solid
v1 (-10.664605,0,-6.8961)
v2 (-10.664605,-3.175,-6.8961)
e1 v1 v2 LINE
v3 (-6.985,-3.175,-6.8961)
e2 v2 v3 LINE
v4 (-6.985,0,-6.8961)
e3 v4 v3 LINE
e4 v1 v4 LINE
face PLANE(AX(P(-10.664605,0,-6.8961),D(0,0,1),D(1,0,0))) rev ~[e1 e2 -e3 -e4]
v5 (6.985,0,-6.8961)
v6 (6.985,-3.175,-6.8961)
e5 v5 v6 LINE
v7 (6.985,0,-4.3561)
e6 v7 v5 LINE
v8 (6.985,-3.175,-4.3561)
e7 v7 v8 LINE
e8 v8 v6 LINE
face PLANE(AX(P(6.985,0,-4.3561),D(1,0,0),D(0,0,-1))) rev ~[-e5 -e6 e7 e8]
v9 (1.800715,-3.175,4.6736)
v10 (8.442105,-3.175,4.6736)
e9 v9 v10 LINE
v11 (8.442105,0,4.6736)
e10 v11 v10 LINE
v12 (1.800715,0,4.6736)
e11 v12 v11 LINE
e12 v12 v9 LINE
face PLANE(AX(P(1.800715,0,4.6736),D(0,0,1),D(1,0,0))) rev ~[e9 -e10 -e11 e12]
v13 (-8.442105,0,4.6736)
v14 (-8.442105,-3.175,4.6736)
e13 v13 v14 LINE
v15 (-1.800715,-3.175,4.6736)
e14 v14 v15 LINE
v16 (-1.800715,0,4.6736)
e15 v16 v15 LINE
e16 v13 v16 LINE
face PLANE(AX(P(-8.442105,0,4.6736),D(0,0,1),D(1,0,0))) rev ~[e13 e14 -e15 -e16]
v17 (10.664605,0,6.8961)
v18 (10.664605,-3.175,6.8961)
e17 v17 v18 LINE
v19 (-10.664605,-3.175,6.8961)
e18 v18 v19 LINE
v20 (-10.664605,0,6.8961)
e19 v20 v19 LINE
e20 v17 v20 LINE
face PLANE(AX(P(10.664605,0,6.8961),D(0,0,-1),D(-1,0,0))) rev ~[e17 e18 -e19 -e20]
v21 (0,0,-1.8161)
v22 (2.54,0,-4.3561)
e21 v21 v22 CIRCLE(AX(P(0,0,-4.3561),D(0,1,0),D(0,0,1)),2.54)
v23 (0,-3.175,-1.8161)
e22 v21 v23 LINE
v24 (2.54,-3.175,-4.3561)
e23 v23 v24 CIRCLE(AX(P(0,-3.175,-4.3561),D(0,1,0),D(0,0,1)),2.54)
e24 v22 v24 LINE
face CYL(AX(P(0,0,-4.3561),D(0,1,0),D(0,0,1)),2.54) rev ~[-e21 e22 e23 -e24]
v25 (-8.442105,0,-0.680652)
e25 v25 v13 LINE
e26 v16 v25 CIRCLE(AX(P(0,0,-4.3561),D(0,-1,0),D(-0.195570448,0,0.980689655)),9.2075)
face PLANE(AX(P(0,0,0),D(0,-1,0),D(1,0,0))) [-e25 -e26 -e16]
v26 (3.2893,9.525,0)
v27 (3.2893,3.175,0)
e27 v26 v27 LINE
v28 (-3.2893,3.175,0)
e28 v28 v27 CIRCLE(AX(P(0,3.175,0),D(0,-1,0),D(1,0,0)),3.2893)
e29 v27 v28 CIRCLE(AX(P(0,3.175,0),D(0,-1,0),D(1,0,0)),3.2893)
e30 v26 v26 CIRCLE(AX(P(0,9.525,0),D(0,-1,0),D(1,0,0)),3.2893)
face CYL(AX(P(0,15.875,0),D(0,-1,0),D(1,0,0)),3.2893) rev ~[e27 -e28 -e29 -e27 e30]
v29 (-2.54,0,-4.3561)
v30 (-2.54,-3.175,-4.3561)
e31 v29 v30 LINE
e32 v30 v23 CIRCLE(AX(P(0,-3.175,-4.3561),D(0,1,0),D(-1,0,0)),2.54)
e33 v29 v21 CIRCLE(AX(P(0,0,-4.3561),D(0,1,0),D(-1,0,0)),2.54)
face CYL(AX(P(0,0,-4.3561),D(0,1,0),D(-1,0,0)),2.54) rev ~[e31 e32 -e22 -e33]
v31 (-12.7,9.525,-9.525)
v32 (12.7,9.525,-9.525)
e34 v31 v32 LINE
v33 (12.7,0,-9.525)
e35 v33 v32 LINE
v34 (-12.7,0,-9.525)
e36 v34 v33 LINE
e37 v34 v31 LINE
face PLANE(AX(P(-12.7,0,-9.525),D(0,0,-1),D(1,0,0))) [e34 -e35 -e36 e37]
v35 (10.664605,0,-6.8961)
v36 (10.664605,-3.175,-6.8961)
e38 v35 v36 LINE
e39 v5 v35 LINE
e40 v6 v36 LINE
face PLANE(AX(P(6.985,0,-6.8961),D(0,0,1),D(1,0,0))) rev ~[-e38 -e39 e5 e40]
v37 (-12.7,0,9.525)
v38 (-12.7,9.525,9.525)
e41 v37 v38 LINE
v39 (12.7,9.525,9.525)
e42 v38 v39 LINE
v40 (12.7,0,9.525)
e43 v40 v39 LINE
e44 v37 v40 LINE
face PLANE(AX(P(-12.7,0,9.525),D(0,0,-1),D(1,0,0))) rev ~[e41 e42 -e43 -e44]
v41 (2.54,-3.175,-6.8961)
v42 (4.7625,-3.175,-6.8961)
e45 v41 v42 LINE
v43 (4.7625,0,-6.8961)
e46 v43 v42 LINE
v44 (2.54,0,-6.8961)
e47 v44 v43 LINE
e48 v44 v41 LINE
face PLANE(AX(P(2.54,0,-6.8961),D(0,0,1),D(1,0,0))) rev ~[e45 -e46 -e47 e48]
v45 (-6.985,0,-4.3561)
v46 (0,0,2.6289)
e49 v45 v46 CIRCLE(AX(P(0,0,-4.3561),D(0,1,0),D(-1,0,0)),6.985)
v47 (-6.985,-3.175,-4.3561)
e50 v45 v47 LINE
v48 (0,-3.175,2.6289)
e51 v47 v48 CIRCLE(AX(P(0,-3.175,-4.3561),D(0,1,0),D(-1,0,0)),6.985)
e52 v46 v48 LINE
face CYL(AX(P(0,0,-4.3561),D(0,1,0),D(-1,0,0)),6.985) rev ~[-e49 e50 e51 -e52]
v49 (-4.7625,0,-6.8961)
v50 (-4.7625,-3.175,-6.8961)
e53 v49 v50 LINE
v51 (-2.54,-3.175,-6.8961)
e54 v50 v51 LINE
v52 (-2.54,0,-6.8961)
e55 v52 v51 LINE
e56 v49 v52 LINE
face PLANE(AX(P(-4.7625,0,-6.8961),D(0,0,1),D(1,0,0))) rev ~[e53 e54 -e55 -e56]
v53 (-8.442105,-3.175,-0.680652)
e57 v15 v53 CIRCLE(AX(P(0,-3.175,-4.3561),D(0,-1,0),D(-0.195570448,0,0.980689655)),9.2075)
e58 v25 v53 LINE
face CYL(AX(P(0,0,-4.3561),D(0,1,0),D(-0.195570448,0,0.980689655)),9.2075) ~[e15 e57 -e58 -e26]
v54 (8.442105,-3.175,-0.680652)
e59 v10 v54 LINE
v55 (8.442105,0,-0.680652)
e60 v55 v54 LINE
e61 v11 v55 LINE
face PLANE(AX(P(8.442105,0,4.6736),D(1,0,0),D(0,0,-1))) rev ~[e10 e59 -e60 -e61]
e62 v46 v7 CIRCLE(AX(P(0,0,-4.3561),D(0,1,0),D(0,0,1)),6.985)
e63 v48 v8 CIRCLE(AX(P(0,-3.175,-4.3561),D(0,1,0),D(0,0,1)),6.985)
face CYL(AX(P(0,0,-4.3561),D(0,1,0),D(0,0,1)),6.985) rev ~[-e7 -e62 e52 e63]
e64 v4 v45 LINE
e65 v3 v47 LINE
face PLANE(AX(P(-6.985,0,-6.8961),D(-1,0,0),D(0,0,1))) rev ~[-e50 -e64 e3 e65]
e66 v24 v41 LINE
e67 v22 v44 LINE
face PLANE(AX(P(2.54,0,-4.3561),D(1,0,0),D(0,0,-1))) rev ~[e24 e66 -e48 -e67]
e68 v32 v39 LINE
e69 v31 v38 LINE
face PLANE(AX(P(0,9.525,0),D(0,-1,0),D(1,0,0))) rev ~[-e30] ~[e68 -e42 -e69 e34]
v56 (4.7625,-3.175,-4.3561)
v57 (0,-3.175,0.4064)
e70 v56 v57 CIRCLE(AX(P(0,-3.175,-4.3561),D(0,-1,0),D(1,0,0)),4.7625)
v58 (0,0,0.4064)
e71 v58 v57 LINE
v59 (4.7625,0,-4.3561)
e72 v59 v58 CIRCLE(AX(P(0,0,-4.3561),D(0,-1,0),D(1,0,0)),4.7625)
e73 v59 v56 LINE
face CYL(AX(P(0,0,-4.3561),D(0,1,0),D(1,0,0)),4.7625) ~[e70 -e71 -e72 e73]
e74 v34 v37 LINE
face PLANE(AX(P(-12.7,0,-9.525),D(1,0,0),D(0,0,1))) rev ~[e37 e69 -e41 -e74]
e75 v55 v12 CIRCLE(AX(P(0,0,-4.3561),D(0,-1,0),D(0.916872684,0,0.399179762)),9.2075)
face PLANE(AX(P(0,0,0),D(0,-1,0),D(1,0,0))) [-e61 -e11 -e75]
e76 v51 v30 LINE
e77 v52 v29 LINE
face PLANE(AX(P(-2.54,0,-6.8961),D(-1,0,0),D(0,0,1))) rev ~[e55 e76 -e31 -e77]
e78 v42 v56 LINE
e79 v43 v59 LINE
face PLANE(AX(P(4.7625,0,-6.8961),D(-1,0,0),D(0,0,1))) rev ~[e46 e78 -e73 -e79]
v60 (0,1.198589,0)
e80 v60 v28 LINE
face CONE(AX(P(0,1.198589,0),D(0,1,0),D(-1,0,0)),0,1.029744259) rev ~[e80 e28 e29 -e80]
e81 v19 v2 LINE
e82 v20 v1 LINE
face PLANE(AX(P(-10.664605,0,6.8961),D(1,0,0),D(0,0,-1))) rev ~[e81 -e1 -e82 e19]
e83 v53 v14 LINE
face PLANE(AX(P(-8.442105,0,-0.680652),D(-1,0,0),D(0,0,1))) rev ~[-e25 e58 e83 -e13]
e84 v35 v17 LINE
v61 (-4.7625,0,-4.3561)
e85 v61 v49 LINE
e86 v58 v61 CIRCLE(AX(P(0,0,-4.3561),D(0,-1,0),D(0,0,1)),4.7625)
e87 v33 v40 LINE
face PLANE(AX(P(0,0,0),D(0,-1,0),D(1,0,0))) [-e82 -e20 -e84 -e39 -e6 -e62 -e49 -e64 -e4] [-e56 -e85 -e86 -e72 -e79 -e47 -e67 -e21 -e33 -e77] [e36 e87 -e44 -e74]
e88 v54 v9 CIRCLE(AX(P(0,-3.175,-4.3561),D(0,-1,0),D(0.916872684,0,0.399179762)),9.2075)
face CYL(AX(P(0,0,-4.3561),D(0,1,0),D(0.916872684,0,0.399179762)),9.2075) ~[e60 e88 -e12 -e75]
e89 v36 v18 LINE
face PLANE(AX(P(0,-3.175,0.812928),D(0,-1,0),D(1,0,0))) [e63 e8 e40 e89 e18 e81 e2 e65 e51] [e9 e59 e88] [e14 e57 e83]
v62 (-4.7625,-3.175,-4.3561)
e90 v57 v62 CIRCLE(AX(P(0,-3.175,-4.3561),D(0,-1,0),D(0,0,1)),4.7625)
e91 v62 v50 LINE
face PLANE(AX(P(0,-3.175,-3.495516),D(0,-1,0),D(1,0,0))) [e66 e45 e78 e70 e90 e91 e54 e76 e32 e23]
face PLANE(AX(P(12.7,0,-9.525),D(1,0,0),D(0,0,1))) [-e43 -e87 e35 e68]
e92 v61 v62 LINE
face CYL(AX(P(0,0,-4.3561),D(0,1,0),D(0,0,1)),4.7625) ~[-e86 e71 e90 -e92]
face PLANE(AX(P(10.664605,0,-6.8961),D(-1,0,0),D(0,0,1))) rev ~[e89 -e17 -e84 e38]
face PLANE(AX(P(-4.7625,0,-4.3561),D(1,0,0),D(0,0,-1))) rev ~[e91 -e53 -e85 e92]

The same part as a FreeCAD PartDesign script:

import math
import FreeCAD as App
import Part
import Sketcher
from FreeCAD import Vector
Q = App.Units.Quantity


def add_polygon(sketch, points):
    """Adds a closed chain of lines whose ends are joined by coincident constraints."""
    first, n = sketch.GeometryCount, len(points)
    for a, b in zip(points, points[1:] + points[:1]):
        sketch.addGeometry(Part.LineSegment(App.Vector(*a, 0), App.Vector(*b, 0)), False)
    for i in range(n):
        sketch.addConstraint(Sketcher.Constraint("Coincident", first + i, 2, first + (i + 1) % n, 1))

doc = App.newDocument("Part")
body = doc.addObject("PartDesign::Body", "Body")

# Sketch on XZ plane
sketch1 = body.newObject("Sketcher::SketchObject", "Sketch")
sketch1.AttachmentSupport = (doc.getObject("XZ_Plane"), [""])
sketch1.MapMode = "FlatFace"
add_polygon(sketch1, [(-13, 10), (-13, -10), (13, -10), (13, 10)])  # lines 0-3
sketch1.addConstraint([
    Sketcher.Constraint("Vertical", 0),
    Sketcher.Constraint("Horizontal", 1),
    Sketcher.Constraint("Vertical", 2),
    Sketcher.Constraint("Horizontal", 3),
    Sketcher.Constraint("Symmetric", 0, 2, 2, 2, -1, 1),
    Sketcher.Constraint("DistanceX", 1, 1, 1, 2, Q("1 in")),
    Sketcher.Constraint("DistanceY", 0, 2, 0, 1, Q("0.75 in")),
])
pad1 = body.newObject("PartDesign::Pad", "Pad")
pad1.Profile = sketch1
pad1.Length = Q("0.375 in")
pad1.Reversed = True

# Sketch on XZ plane
sketch2 = body.newObject("Sketcher::SketchObject", "Sketch001")
sketch2.AttachmentSupport = (doc.getObject("XZ_Plane"), [""])
sketch2.MapMode = "FlatFace"
sketch2.addGeometry([
    Part.LineSegment(Vector(10.7, 6.9, 0), Vector(-10.7, 6.9, 0)),  # 0
    Part.LineSegment(Vector(-10.7, 6.9, 0), Vector(-10.7, -6.9, 0)),  # 1
    Part.LineSegment(Vector(-10.7, -6.9, 0), Vector(-7, -6.9, 0)),  # 2
    Part.LineSegment(Vector(-7, -6.9, 0), Vector(-7, -4.4, 0)),  # 3
    Part.ArcOfCircle(Part.Circle(Vector(0, -4.4, 0), Vector(0, 0, 1), 7), math.radians(90), math.radians(180)),  # 4
    Part.ArcOfCircle(Part.Circle(Vector(0, -4.4, 0), Vector(0, 0, 1), 7), math.radians(0), math.radians(90)),  # 5
    Part.LineSegment(Vector(7, -4.4, 0), Vector(7, -6.9, 0)),  # 6
    Part.LineSegment(Vector(7, -6.9, 0), Vector(10.7, -6.9, 0)),  # 7
    Part.LineSegment(Vector(10.7, -6.9, 0), Vector(10.7, 6.9, 0)),  # 8
    Part.LineSegment(Vector(-8.4, 4.7, 0), Vector(-1.8, 4.7, 0)),  # 9
    Part.ArcOfCircle(Part.Circle(Vector(0, -4.4, 0), Vector(0, 0, 1), 9.2), math.radians(101), math.radians(156)),  # 10
    Part.LineSegment(Vector(-8.4, -0.7, 0), Vector(-8.4, 4.7, 0)),  # 11
    Part.LineSegment(Vector(8.4, 4.7, 0), Vector(8.4, -0.7, 0)),  # 12
    Part.ArcOfCircle(Part.Circle(Vector(0, -4.4, 0), Vector(0, 0, 1), 9.2), math.radians(24), math.radians(79)),  # 13
    Part.LineSegment(Vector(1.8, 4.7, 0), Vector(8.4, 4.7, 0)),  # 14
    Part.LineSegment(Vector(2.5, -4.4, 0), Vector(2.5, -6.9, 0)),  # 15
    Part.LineSegment(Vector(2.5, -6.9, 0), Vector(4.8, -6.9, 0)),  # 16
    Part.LineSegment(Vector(4.8, -6.9, 0), Vector(4.8, -4.4, 0)),  # 17
    Part.ArcOfCircle(Part.Circle(Vector(0, -4.4, 0), Vector(0, 0, 1), 4.8), math.radians(0), math.radians(90)),  # 18
    Part.ArcOfCircle(Part.Circle(Vector(0, -4.4, 0), Vector(0, 0, 1), 4.8), math.radians(90), math.radians(180)),  # 19
    Part.LineSegment(Vector(-4.8, -4.4, 0), Vector(-4.8, -6.9, 0)),  # 20
    Part.LineSegment(Vector(-4.8, -6.9, 0), Vector(-2.5, -6.9, 0)),  # 21
    Part.LineSegment(Vector(-2.5, -6.9, 0), Vector(-2.5, -4.4, 0)),  # 22
    Part.ArcOfCircle(Part.Circle(Vector(0, -4.4, 0), Vector(0, 0, 1), 2.5), math.radians(90), math.radians(180)),  # 23
    Part.ArcOfCircle(Part.Circle(Vector(0, -4.4, 0), Vector(0, 0, 1), 2.5), math.radians(0), math.radians(90)),  # 24
], False)
sketch2.addConstraint([
    Sketcher.Constraint("Coincident", 0, 2, 1, 1),
    Sketcher.Constraint("Coincident", 1, 2, 2, 1),
    Sketcher.Constraint("Coincident", 2, 2, 3, 1),
    Sketcher.Constraint("Tangent", 3, 2, 4, 2),
    Sketcher.Constraint("Tangent", 4, 1, 5, 2),
    Sketcher.Constraint("Tangent", 5, 1, 6, 1),
    Sketcher.Constraint("Coincident", 6, 2, 7, 1),
    Sketcher.Constraint("Coincident", 7, 2, 8, 1),
    Sketcher.Constraint("Coincident", 8, 2, 0, 1),
    Sketcher.Constraint("Coincident", 9, 2, 10, 1),
    Sketcher.Constraint("Coincident", 10, 2, 11, 1),
    Sketcher.Constraint("Coincident", 11, 2, 9, 1),
    Sketcher.Constraint("Coincident", 12, 2, 13, 1),
    Sketcher.Constraint("Coincident", 13, 2, 14, 1),
    Sketcher.Constraint("Coincident", 14, 2, 12, 1),
    Sketcher.Constraint("Coincident", 15, 2, 16, 1),
    Sketcher.Constraint("Coincident", 16, 2, 17, 1),
    Sketcher.Constraint("Tangent", 17, 2, 18, 1),
    Sketcher.Constraint("Tangent", 18, 2, 19, 1),
    Sketcher.Constraint("Tangent", 19, 2, 20, 1),
    Sketcher.Constraint("Coincident", 20, 2, 21, 1),
    Sketcher.Constraint("Coincident", 21, 2, 22, 1),
    Sketcher.Constraint("Tangent", 22, 2, 23, 2),
    Sketcher.Constraint("Tangent", 23, 1, 24, 2),
    Sketcher.Constraint("Tangent", 24, 1, 15, 1),
    Sketcher.Constraint("Horizontal", 0),
    Sketcher.Constraint("Vertical", 1),
    Sketcher.Constraint("Horizontal", 2),
    Sketcher.Constraint("Vertical", 3),
    Sketcher.Constraint("Vertical", 6),
    Sketcher.Constraint("Horizontal", 7),
    Sketcher.Constraint("Vertical", 8),
    Sketcher.Constraint("Horizontal", 9),
    Sketcher.Constraint("Vertical", 11),
    Sketcher.Constraint("Vertical", 12),
    Sketcher.Constraint("Horizontal", 14),
    Sketcher.Constraint("Vertical", 15),
    Sketcher.Constraint("Horizontal", 16),
    Sketcher.Constraint("Vertical", 17),
    Sketcher.Constraint("Vertical", 20),
    Sketcher.Constraint("Horizontal", 21),
    Sketcher.Constraint("Vertical", 22),
    Sketcher.Constraint("Coincident", 10, 3, 4, 3),
    Sketcher.Constraint("Coincident", 13, 3, 4, 3),
    Sketcher.Constraint("Coincident", 18, 3, 4, 3),
    Sketcher.Constraint("Coincident", 23, 3, 4, 3),
    Sketcher.Constraint("Equal", 4, 5),
    Sketcher.Constraint("Equal", 10, 13),
    Sketcher.Constraint("Equal", 18, 19),
    Sketcher.Constraint("Equal", 23, 24),
    Sketcher.Constraint("Symmetric", 0, 2, 7, 2, -1, 1),
    Sketcher.Constraint("Symmetric", 2, 2, 6, 2, -2),
    Sketcher.Constraint("Symmetric", 11, 2, 14, 2, -2),
    Sketcher.Constraint("PointOnObject", 4, 1, -2),
    Sketcher.Constraint("PointOnObject", 18, 2, -2),
    Sketcher.Constraint("PointOnObject", 23, 1, -2),
    Sketcher.Constraint("Horizontal", 7, 2, 15, 2),
    Sketcher.Constraint("Horizontal", 16, 2, 20, 2),
    Sketcher.Constraint("Radius", 23, Q("0.1 in")),
    Sketcher.Constraint("DistanceY", 3, 1, 3, 2, Q("0.1 in")),
    Sketcher.Constraint("Radius", 4, Q("0.275 in")),
    Sketcher.Constraint("Radius", 18, Q("0.1875 in")),
    Sketcher.Constraint("Radius", 10, Q("0.3625 in")),
    Sketcher.Constraint("DistanceY", 1, 2, 1, 1, Q("0.543 in")),
    Sketcher.Constraint("DistanceY", -1, 1, 9, 2, Q("0.184 in")),
    Sketcher.Constraint("DistanceX", 1, 2, 10, 2, Q("0.0875 in")),
    Sketcher.Constraint("DistanceX", 0, 2, 0, 1, Q("21.32921 mm")),
])
pad2 = body.newObject("PartDesign::Pad", "Pad001")
pad2.Profile = sketch2
pad2.Length = Q("0.125 in")

# Sketch on XZ plane
sketch3 = body.newObject("Sketcher::SketchObject", "Sketch002")
sketch3.AttachmentSupport = (doc.getObject("XZ_Plane"), [""])
sketch3.MapMode = "FlatFace"
sketch3.AttachmentOffset = App.Placement(Vector(0, 0, -0.375 * 25.4), App.Rotation())
sketch3.addGeometry(Part.Circle(Vector(0, 0, 0), Vector(0, 0, 1), 3.3), False)
sketch3.addConstraint([
    Sketcher.Constraint("Coincident", 0, 3, -1, 1),
    Sketcher.Constraint("Diameter", 0, Q("0.259 in")),
])
doc.recompute()
hole = body.newObject("PartDesign::Hole", "Hole")
hole.Profile = sketch3
hole.ThreadType = "None"
hole.Diameter = Q("0.259 in")
hole.DepthType = "Dimension"
hole.Depth = Q("0.25 in")
hole.DrillPoint = "Angled"
hole.DrillPointAngle = 118
hole.Reversed = True

doc.recompute()
